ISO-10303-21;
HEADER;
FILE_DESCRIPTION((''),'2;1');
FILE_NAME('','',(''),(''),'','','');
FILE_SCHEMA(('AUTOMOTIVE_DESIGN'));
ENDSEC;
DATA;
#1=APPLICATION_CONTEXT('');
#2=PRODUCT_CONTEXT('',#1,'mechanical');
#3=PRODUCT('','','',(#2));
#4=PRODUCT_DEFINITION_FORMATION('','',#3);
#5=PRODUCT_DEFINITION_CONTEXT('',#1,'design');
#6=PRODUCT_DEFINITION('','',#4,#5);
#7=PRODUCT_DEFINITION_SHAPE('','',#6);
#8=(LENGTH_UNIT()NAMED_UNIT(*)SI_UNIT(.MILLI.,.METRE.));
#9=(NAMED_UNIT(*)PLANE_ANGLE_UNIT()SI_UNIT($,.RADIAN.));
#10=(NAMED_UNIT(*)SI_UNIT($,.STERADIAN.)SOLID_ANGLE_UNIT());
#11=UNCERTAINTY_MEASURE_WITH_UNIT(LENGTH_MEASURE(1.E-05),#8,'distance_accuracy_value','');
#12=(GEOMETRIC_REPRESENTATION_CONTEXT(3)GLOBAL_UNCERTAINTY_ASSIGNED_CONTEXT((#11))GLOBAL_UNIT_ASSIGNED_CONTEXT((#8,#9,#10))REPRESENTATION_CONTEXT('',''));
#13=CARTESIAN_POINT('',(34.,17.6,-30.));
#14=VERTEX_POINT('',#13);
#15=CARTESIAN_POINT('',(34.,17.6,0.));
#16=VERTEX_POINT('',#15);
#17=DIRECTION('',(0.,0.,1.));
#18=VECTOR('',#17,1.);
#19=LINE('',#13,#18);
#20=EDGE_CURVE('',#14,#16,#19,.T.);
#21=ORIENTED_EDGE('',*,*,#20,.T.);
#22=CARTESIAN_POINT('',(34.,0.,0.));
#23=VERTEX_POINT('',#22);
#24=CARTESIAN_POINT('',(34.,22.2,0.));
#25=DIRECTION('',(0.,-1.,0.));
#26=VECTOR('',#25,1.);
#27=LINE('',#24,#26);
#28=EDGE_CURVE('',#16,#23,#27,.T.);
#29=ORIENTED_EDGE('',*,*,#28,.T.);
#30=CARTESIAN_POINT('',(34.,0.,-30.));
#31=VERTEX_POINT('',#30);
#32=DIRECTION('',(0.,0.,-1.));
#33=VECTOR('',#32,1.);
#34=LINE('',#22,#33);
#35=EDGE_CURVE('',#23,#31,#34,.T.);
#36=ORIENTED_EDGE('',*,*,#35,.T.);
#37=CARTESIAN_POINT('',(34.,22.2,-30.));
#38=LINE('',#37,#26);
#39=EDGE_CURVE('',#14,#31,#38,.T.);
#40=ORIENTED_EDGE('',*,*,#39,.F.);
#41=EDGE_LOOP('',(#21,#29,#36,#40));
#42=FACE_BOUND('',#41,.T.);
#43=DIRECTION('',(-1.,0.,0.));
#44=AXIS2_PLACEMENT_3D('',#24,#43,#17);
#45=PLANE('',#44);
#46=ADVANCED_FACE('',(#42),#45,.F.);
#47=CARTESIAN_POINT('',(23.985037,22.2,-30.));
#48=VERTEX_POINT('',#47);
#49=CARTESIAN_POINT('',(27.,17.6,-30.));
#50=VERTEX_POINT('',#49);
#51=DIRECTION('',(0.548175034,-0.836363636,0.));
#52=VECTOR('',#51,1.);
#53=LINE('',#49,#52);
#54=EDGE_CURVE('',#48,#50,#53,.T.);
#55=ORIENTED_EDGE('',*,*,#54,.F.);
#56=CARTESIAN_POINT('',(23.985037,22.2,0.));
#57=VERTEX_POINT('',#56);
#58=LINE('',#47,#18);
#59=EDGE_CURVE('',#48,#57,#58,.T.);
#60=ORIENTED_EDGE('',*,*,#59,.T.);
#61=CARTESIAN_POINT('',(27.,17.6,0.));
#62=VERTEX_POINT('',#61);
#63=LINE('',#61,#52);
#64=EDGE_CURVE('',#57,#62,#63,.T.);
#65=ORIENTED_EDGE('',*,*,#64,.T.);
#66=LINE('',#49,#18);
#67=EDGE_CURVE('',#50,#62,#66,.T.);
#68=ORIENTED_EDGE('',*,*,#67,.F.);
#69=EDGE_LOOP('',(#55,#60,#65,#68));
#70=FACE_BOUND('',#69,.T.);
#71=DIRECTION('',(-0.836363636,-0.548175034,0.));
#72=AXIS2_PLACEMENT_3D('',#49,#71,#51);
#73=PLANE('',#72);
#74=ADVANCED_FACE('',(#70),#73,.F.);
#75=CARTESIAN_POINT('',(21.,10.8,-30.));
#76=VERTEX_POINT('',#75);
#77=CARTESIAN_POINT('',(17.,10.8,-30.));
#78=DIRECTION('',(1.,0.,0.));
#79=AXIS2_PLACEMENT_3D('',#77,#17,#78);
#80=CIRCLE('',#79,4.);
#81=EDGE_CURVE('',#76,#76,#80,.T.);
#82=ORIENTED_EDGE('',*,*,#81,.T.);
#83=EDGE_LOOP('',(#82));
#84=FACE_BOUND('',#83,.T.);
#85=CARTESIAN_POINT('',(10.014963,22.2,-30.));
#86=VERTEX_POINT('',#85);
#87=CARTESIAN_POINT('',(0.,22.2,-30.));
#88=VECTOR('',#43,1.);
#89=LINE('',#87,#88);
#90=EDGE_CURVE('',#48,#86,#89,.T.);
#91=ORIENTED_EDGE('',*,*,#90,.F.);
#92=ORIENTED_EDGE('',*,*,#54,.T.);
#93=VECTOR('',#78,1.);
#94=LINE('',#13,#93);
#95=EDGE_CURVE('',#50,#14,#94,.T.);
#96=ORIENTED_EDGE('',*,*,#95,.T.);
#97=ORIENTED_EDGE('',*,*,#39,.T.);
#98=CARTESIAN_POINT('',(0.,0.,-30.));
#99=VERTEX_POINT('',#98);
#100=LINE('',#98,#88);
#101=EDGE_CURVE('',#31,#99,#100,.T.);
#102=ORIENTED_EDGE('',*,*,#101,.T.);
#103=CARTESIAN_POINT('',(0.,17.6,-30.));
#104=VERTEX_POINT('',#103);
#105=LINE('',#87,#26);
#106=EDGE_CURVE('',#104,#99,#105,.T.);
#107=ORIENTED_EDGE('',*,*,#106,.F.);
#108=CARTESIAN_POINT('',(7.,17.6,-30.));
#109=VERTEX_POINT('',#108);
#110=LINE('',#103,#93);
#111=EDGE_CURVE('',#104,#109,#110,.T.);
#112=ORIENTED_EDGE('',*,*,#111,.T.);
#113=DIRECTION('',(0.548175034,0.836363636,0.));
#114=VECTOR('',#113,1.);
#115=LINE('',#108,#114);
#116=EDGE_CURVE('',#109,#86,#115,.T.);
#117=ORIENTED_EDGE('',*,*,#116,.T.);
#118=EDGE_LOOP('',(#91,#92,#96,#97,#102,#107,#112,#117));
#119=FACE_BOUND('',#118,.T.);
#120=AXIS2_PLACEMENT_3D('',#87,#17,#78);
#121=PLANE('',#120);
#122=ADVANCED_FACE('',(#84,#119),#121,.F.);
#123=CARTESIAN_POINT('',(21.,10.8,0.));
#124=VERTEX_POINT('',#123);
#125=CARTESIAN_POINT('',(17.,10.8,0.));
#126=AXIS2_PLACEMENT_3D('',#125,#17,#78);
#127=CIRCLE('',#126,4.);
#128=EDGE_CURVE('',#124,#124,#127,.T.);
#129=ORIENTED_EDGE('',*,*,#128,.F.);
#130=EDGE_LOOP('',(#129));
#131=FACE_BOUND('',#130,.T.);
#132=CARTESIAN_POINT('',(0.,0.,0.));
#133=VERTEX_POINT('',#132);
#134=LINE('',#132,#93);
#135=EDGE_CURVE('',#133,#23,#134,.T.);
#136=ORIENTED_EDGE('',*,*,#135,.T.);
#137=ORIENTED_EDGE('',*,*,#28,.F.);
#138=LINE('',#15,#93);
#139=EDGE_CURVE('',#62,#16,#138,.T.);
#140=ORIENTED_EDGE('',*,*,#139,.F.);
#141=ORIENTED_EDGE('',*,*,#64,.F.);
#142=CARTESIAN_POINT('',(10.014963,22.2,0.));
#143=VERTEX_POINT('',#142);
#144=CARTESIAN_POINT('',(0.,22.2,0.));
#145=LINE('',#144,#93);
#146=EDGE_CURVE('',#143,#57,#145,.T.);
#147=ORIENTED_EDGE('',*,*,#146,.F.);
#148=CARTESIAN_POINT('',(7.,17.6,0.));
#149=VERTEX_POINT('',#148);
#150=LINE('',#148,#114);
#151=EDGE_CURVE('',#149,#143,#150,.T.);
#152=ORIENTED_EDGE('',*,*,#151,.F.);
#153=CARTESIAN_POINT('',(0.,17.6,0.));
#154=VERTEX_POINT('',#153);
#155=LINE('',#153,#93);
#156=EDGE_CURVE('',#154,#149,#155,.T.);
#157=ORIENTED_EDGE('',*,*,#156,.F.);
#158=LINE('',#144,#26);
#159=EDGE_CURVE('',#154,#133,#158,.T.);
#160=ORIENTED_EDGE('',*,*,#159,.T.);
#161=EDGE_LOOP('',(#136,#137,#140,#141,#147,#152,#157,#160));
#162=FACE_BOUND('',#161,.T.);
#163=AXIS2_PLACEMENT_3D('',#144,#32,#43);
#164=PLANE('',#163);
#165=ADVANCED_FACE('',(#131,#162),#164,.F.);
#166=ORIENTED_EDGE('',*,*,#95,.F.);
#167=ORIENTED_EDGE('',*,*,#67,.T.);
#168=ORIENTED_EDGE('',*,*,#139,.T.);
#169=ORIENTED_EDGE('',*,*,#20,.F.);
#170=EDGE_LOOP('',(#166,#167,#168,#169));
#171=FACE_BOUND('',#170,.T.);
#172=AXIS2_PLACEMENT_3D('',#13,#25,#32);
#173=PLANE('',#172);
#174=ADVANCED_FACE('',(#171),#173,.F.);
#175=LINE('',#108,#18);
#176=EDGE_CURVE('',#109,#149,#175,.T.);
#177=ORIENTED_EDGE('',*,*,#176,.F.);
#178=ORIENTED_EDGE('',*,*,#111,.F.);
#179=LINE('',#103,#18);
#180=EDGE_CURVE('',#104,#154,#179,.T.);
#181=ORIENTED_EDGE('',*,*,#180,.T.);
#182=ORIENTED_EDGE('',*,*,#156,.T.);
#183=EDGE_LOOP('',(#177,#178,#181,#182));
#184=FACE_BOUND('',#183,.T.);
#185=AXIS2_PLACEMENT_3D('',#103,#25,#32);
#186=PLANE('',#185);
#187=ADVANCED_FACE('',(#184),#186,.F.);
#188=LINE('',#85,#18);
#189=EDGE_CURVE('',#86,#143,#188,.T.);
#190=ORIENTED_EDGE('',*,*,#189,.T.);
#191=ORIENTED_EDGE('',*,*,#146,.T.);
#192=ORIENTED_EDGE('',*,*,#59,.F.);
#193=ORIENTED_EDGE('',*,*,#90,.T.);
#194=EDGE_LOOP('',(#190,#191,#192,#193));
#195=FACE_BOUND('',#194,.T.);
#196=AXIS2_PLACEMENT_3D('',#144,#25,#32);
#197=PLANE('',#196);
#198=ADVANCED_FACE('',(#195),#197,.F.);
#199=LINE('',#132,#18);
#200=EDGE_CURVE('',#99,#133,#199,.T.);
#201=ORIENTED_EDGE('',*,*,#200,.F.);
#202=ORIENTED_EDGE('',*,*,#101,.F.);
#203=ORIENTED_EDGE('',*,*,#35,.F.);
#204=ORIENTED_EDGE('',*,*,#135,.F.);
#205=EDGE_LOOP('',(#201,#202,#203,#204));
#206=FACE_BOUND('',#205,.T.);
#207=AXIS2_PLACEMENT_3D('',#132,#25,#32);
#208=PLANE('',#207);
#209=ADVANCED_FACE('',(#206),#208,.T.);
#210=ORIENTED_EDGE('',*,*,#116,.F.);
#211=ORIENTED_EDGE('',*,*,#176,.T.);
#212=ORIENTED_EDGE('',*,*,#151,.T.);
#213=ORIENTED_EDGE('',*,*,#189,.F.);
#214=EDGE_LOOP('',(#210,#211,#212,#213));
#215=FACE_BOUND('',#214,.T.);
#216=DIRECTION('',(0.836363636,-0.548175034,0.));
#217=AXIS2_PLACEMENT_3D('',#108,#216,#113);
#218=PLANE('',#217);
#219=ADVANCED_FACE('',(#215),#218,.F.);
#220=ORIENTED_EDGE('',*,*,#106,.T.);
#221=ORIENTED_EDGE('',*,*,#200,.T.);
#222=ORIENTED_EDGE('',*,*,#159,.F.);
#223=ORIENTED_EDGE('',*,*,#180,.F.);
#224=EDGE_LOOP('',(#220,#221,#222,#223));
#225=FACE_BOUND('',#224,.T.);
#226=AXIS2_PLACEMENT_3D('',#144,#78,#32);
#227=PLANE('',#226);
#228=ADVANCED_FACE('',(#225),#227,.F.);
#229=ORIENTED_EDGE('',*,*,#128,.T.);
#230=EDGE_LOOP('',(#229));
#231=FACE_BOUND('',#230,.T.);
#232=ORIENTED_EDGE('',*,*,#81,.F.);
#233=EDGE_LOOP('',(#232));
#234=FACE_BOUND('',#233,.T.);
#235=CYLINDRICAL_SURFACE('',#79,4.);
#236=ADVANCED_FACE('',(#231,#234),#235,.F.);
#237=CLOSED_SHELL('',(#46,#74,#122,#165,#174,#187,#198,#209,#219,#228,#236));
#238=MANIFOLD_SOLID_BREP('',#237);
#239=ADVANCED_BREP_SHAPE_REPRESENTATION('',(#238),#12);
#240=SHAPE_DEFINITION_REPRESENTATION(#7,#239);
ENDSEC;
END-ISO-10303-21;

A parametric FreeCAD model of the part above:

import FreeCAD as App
import Part
import Sketcher
from FreeCAD import Vector

doc = App.newDocument("Part")
body = doc.addObject("PartDesign::Body", "Body")

sketch1 = body.newObject("Sketcher::SketchObject", "Sketch")
sketch1.AttachmentSupport = (doc.getObject("XZ_Plane"), [""])
sketch1.MapMode = "FlatFace"
sketch1.addGeometry([
    Part.LineSegment(Vector(0, -30, 0), Vector(0, 0, 0)),
    Part.LineSegment(Vector(0, 0, 0), Vector(34, 0, 0)),
    Part.LineSegment(Vector(34, 0, 0), Vector(34, -30, 0)),
    Part.LineSegment(Vector(34, -30, 0), Vector(0, -30, 0)),
], False)
sketch1.addConstraint([
    Sketcher.Constraint("Coincident", 0, 2, 1, 1),
    Sketcher.Constraint("Coincident", 1, 2, 2, 1),
    Sketcher.Constraint("Coincident", 2, 2, 3, 1),
    Sketcher.Constraint("Coincident", 3, 2, 0, 1),
    Sketcher.Constraint("Vertical", 0),
    Sketcher.Constraint("Horizontal", 1),
    Sketcher.Constraint("Vertical", 2),
    Sketcher.Constraint("Horizontal", 3),
    Sketcher.Constraint("Coincident", 0, 2, -1, 1),
    Sketcher.Constraint("DistanceX", 1, 1, 1, 2, 34.0),
    Sketcher.Constraint("DistanceY", 0, 1, 0, 2, 30.0),
])
pad1 = body.newObject("PartDesign::Pad", "Pad")
pad1.Profile = sketch1
pad1.Length = 22.2
pad1.Reversed = True

sketch2 = body.newObject("Sketcher::SketchObject", "Sketch001")
sketch2.AttachmentSupport = (doc.getObject("XY_Plane"), [""])
sketch2.MapMode = "FlatFace"
sketch2.addGeometry([
    Part.LineSegment(Vector(27, 17.6, 0), Vector(34, 17.6, 0)),
    Part.LineSegment(Vector(34, 17.6, 0), Vector(34, 22.2, 0)),
    Part.LineSegment(Vector(34, 22.2, 0), Vector(24, 22.2, 0)),
    Part.LineSegment(Vector(24, 22.2, 0), Vector(27, 17.6, 0)),
    Part.LineSegment(Vector(0, 22.2, 0), Vector(0, 17.6, 0)),
    Part.LineSegment(Vector(0, 17.6, 0), Vector(7, 17.6, 0)),
    Part.LineSegment(Vector(7, 17.6, 0), Vector(10, 22.2, 0)),
    Part.LineSegment(Vector(10, 22.2, 0), Vector(0, 22.2, 0)),
], False)
sketch2.addConstraint([
    Sketcher.Constraint("Coincident", 0, 2, 1, 1),
    Sketcher.Constraint("Coincident", 1, 2, 2, 1),
    Sketcher.Constraint("Coincident", 2, 2, 3, 1),
    Sketcher.Constraint("Coincident", 3, 2, 0, 1),
    Sketcher.Constraint("Coincident", 4, 2, 5, 1),
    Sketcher.Constraint("Coincident", 5, 2, 6, 1),
    Sketcher.Constraint("Coincident", 6, 2, 7, 1),
    Sketcher.Constraint("Coincident", 7, 2, 4, 1),
    Sketcher.Constraint("Horizontal", 0),
    Sketcher.Constraint("Vertical", 1),
    Sketcher.Constraint("Horizontal", 2),
    Sketcher.Constraint("Vertical", 4),
    Sketcher.Constraint("Horizontal", 5),
    Sketcher.Constraint("Horizontal", 7),
    Sketcher.Constraint("PointOnObject", 4, 2, -2),
    Sketcher.Constraint("Horizontal", 3, 2, 4, 2),
    Sketcher.Constraint("Horizontal", 2, 2, 6, 2),
    Sketcher.Constraint("Equal", 0, 5),
    Sketcher.Constraint("Equal", 2, 7),
    Sketcher.Constraint("DistanceX", 0, 1, 0, 2, 7.0),
    Sketcher.Constraint("DistanceY", 1, 1, 1, 2, 4.6),
    Sketcher.Constraint("DistanceX", -1, 1, 0, 2, 34.0),
    Sketcher.Constraint("Distance", 3, 5.5),
    Sketcher.Constraint("DistanceY", -1, 1, 0, 2, 17.6),
])
pocket1 = body.newObject("PartDesign::Pocket", "Pocket")
pocket1.Profile = sketch2
pocket1.Type = "ThroughAll"

sketch3 = body.newObject("Sketcher::SketchObject", "Sketch002")
sketch3.AttachmentSupport = (doc.getObject("XY_Plane"), [""])
sketch3.MapMode = "FlatFace"
sketch3.addGeometry(Part.Circle(Vector(17, 10.8, 0), Vector(0, 0, 1), 4), False)
sketch3.addConstraint([
    Sketcher.Constraint("Diameter", 0, 8.0),
    Sketcher.Constraint("DistanceX", -1, 1, 0, 3, 17.0),
    Sketcher.Constraint("DistanceY", -1, 1, 0, 3, 10.8),
])
pocket2 = body.newObject("PartDesign::Pocket", "Pocket001")
pocket2.Profile = sketch3
pocket2.Type = "ThroughAll"

doc.recompute()
